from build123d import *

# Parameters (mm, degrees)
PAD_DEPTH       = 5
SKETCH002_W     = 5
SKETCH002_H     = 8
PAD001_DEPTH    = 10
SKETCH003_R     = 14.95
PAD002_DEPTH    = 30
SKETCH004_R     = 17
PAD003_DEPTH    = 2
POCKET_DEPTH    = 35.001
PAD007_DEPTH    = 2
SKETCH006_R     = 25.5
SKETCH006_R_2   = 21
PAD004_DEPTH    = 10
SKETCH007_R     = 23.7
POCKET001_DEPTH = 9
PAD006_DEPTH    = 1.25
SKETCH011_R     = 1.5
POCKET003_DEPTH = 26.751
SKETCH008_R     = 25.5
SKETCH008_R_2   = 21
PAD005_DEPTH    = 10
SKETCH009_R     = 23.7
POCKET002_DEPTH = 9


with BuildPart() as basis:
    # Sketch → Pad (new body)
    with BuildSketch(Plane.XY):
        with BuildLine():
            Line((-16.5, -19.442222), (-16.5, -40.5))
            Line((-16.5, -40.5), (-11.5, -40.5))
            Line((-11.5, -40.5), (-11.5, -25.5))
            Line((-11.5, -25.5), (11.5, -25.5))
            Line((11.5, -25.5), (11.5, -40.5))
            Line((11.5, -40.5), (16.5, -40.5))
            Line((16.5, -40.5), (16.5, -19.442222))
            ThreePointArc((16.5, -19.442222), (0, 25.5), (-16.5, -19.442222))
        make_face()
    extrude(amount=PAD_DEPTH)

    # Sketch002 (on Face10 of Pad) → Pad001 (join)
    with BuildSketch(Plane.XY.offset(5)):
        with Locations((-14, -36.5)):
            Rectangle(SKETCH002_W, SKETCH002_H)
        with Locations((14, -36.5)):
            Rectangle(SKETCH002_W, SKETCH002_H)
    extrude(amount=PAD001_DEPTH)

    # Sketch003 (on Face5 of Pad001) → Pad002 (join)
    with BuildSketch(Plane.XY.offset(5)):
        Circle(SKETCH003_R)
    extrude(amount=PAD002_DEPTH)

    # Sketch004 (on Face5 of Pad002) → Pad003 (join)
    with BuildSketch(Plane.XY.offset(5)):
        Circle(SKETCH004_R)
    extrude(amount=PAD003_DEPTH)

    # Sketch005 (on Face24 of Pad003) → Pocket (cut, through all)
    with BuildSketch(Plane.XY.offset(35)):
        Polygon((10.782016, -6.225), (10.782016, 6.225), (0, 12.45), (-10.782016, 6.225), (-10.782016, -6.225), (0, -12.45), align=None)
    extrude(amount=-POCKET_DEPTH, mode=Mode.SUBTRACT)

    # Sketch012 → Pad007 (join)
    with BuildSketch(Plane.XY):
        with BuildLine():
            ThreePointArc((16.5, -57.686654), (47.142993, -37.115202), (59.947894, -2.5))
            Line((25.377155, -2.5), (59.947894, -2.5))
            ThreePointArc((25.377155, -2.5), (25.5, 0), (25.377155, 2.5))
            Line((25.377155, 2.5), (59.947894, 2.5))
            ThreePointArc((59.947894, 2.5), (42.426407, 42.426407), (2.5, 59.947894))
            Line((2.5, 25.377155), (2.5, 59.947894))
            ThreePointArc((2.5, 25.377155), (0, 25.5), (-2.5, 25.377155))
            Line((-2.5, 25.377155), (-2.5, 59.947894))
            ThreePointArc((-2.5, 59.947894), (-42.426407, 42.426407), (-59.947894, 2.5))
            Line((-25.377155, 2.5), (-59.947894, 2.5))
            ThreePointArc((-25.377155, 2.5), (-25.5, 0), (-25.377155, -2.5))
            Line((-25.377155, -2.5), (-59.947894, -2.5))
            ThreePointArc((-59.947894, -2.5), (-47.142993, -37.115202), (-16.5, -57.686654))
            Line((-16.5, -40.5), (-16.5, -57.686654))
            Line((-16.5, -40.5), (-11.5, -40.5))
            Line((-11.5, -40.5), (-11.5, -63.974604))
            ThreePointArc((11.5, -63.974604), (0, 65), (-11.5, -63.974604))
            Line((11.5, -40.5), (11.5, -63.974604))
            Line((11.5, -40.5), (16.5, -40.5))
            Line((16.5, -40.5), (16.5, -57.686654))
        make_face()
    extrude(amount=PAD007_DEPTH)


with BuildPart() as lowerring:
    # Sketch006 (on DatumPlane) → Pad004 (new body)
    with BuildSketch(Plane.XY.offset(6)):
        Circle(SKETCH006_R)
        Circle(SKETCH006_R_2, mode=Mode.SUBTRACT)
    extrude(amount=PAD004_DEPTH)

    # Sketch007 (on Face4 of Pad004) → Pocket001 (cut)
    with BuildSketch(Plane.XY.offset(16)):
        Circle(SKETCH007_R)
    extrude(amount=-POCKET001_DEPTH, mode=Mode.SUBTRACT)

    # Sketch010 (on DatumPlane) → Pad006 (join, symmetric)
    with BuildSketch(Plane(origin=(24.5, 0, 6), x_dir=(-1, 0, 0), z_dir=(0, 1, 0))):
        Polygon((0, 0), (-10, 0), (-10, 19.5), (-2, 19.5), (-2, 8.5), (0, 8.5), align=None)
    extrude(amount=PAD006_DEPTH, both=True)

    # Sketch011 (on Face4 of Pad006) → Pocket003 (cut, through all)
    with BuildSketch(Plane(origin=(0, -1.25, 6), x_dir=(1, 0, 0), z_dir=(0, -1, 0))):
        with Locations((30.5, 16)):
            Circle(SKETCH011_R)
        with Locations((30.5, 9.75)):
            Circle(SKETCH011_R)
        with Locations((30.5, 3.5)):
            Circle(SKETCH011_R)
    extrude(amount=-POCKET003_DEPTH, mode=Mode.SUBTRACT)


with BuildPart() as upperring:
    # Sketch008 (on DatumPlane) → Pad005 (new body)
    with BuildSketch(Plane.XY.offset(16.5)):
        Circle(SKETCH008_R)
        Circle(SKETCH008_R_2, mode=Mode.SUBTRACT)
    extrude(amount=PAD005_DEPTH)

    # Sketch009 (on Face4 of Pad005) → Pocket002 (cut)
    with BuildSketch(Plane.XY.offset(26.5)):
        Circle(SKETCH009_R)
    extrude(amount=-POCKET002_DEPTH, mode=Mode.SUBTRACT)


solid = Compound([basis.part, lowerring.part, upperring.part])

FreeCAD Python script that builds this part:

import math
import FreeCAD as App
import Part
import Sketcher
from FreeCAD import Vector
Q = App.Units.Quantity

doc = App.newDocument("Part")
body = doc.addObject("PartDesign::Body", "Body")

sketch1 = body.newObject("Sketcher::SketchObject", "Sketch")
sketch1.AttachmentSupport = (doc.getObject("XY_Plane"), [""])
sketch1.MapMode = "FlatFace"
sketch1.addGeometry([
    Part.LineSegment(Vector(-16.5, -19.442222, 0), Vector(-16.5, -40.5, 0)),
    Part.LineSegment(Vector(-16.5, -40.5, 0), Vector(-11.5, -40.5, 0)),
    Part.LineSegment(Vector(-11.5, -40.5, 0), Vector(-11.5, -25.5, 0)),
    Part.LineSegment(Vector(-11.5, -25.5, 0), Vector(11.5, -25.5, 0)),
    Part.LineSegment(Vector(11.5, -25.5, 0), Vector(11.5, -40.5, 0)),
    Part.LineSegment(Vector(11.5, -40.5, 0), Vector(16.5, -40.5, 0)),
    Part.LineSegment(Vector(16.5, -40.5, 0), Vector(16.5, -19.442222, 0)),
    Part.ArcOfCircle(Part.Circle(Vector(0, 0, 0), Vector(0, 0, 1), 25.5), math.radians(-49.679785), math.radians(229.679785)),
], False)
sketch1.addConstraint([
    Sketcher.Constraint("Coincident", 0, 2, 1, 1),
    Sketcher.Constraint("Coincident", 1, 2, 2, 1),
    Sketcher.Constraint("Coincident", 2, 2, 3, 1),
    Sketcher.Constraint("Coincident", 3, 2, 4, 1),
    Sketcher.Constraint("Coincident", 4, 2, 5, 1),
    Sketcher.Constraint("Coincident", 5, 2, 6, 1),
    Sketcher.Constraint("Coincident", 6, 2, 7, 1),
    Sketcher.Constraint("Coincident", 7, 2, 0, 1),
    Sketcher.Constraint("Vertical", 0),
    Sketcher.Constraint("Horizontal", 1),
    Sketcher.Constraint("Vertical", 2),
    Sketcher.Constraint("Horizontal", 3),
    Sketcher.Constraint("Vertical", 4),
    Sketcher.Constraint("Horizontal", 5),
    Sketcher.Constraint("Vertical", 6),
    Sketcher.Constraint("Coincident", 7, 3, -1, 1),
    Sketcher.Constraint("Symmetric", 1, 2, 4, 2, -2),
    Sketcher.Constraint("Horizontal", 6, 2, 7, 2),
    Sketcher.Constraint("Radius", 7, Q("25.5 mm")),
    Sketcher.Constraint("DistanceX", 1, 1, 1, 2, Q("5 mm")),
    Sketcher.Constraint("DistanceX", 3, 1, 3, 2, Q("23 mm")),
    Sketcher.Constraint("DistanceY", 2, 1, 2, 2, Q("15 mm")),
    Sketcher.Constraint("DistanceY", 0, 2, -1, 1, Q("40.5 mm")),
])
pad1 = body.newObject("PartDesign::Pad", "Pad")
pad1.Profile = sketch1
pad1.Length = 5

sketch2 = body.newObject("Sketcher::SketchObject", "Sketch001")
sketch2.AttachmentSupport = (doc.getObject("XY_Plane"), [""])
sketch2.MapMode = "FlatFace"
sketch2.AttachmentOffset = App.Placement(Vector(0, 0, 5), App.Rotation())
sketch2.addGeometry([
    Part.LineSegment(Vector(-16.5, -32.5, 0), Vector(-16.5, -40.5, 0)),
    Part.LineSegment(Vector(-16.5, -40.5, 0), Vector(-11.5, -40.5, 0)),
    Part.LineSegment(Vector(-11.5, -40.5, 0), Vector(-11.5, -32.5, 0)),
    Part.LineSegment(Vector(-11.5, -32.5, 0), Vector(-16.5, -32.5, 0)),
    Part.LineSegment(Vector(11.5, -32.5, 0), Vector(11.5, -40.5, 0)),
    Part.LineSegment(Vector(11.5, -40.5, 0), Vector(16.5, -40.5, 0)),
    Part.LineSegment(Vector(16.5, -40.5, 0), Vector(16.5, -32.5, 0)),
    Part.LineSegment(Vector(16.5, -32.5, 0), Vector(11.5, -32.5, 0)),
], False)
sketch2.addConstraint([
    Sketcher.Constraint("Coincident", 0, 2, 1, 1),
    Sketcher.Constraint("Coincident", 1, 2, 2, 1),
    Sketcher.Constraint("Coincident", 2, 2, 3, 1),
    Sketcher.Constraint("Coincident", 3, 2, 0, 1),
    Sketcher.Constraint("Coincident", 4, 2, 5, 1),
    Sketcher.Constraint("Coincident", 5, 2, 6, 1),
    Sketcher.Constraint("Coincident", 6, 2, 7, 1),
    Sketcher.Constraint("Coincident", 7, 2, 4, 1),
    Sketcher.Constraint("Vertical", 0),
    Sketcher.Constraint("Horizontal", 1),
    Sketcher.Constraint("Vertical", 2),
    Sketcher.Constraint("Horizontal", 3),
    Sketcher.Constraint("Vertical", 4),
    Sketcher.Constraint("Horizontal", 5),
    Sketcher.Constraint("Vertical", 6),
    Sketcher.Constraint("Horizontal", 7),
    Sketcher.Constraint("Symmetric", 1, 2, 4, 2, -2),
    Sketcher.Constraint("Symmetric", 3, 2, 6, 2, -2),
    Sketcher.Constraint("DistanceX", 1, 1, 1, 2, Q("5 mm")),
    Sketcher.Constraint("DistanceY", 0, 2, 0, 1, Q("8 mm")),
    Sketcher.Constraint("DistanceX", 1, 2, 4, 2, Q("23 mm")),
    Sketcher.Constraint("DistanceY", 0, 2, -1, 1, Q("40.5 mm")),
])
pad2 = body.newObject("PartDesign::Pad", "Pad001")
pad2.Profile = sketch2
pad2.Length = 10

sketch3 = body.newObject("Sketcher::SketchObject", "Sketch002")
sketch3.AttachmentSupport = (doc.getObject("XY_Plane"), [""])
sketch3.MapMode = "FlatFace"
sketch3.AttachmentOffset = App.Placement(Vector(0, 0, 5), App.Rotation())
sketch3.addGeometry(Part.Circle(Vector(0, 0, 0), Vector(0, 0, 1), 14.95), False)
sketch3.addConstraint([
    Sketcher.Constraint("Coincident", 0, 3, -1, 1),
    Sketcher.Constraint("Diameter", 0, Q("29.9 mm")),
])
pad3 = body.newObject("PartDesign::Pad", "Pad002")
pad3.Profile = sketch3
pad3.Length = 30

sketch4 = body.newObject("Sketcher::SketchObject", "Sketch003")
sketch4.AttachmentSupport = (doc.getObject("XY_Plane"), [""])
sketch4.MapMode = "FlatFace"
sketch4.AttachmentOffset = App.Placement(Vector(0, 0, 5), App.Rotation())
sketch4.addGeometry(Part.Circle(Vector(0, 0, 0), Vector(0, 0, 1), 17), False)
sketch4.addConstraint([
    Sketcher.Constraint("Coincident", 0, 3, -1, 1),
    Sketcher.Constraint("Diameter", 0, Q("34 mm")),
])
pad4 = body.newObject("PartDesign::Pad", "Pad003")
pad4.Profile = sketch4
pad4.Length = 2

sketch5 = body.newObject("Sketcher::SketchObject", "Sketch004")
sketch5.AttachmentSupport = (doc.getObject("XY_Plane"), [""])
sketch5.MapMode = "FlatFace"
sketch5.AttachmentOffset = App.Placement(Vector(0, 0, 35), App.Rotation())
sketch5.addGeometry([
    Part.LineSegment(Vector(10.782016, -6.225, 0), Vector(10.782016, 6.225, 0)),
    Part.LineSegment(Vector(10.782016, 6.225, 0), Vector(0, 12.45, 0)),
    Part.LineSegment(Vector(0, 12.45, 0), Vector(-10.782016, 6.225, 0)),
    Part.LineSegment(Vector(-10.782016, 6.225, 0), Vector(-10.782016, -6.225, 0)),
    Part.LineSegment(Vector(-10.782016, -6.225, 0), Vector(0, -12.45, 0)),
    Part.LineSegment(Vector(0, -12.45, 0), Vector(10.782016, -6.225, 0)),
], False)
sketch5.addConstraint([
    Sketcher.Constraint("Coincident", 0, 2, 1, 1),
    Sketcher.Constraint("Coincident", 1, 2, 2, 1),
    Sketcher.Constraint("Coincident", 2, 2, 3, 1),
    Sketcher.Constraint("Coincident", 3, 2, 4, 1),
    Sketcher.Constraint("Coincident", 4, 2, 5, 1),
    Sketcher.Constraint("Coincident", 5, 2, 0, 1),
    Sketcher.Constraint("Vertical", 0),
    Sketcher.Constraint("Vertical", 3),
    Sketcher.Constraint("Symmetric", 0, 2, 3, 2, -1, 1),
    Sketcher.Constraint("Symmetric", 1, 2, 4, 2, -1, 1),
    Sketcher.Constraint("PointOnObject", 1, 2, -2),
    Sketcher.Constraint("Parallel", 2, 5),
    Sketcher.Constraint("Horizontal", 0, 2, 2, 2),
    Sketcher.Constraint("Angle", 1, Q("149.999999 deg")),
    Sketcher.Constraint("DistanceY", 0, 1, 0, 2, Q("12.45 mm")),
    Sketcher.Constraint("DistanceY", 4, 2, 1, 2, Q("24.9 mm")),
])
pocket1 = body.newObject("PartDesign::Pocket", "Pocket")
pocket1.Profile = sketch5
pocket1.Type = "ThroughAll"

sketch6 = body.newObject("Sketcher::SketchObject", "Sketch005")
sketch6.AttachmentSupport = (doc.getObject("XY_Plane"), [""])
sketch6.MapMode = "FlatFace"
sketch6.addGeometry([
    Part.ArcOfCircle(Part.Circle(Vector(-0.000001, 0, 0), Vector(0, 0, 1), 60.000001), math.radians(-74.037985), math.radians(-2.388016)),
    Part.LineSegment(Vector(16.5, -57.686654, 0), Vector(16.5, -40.5, 0)),
    Part.LineSegment(Vector(16.5, -40.5, 0), Vector(11.5, -40.5, 0)),
    Part.LineSegment(Vector(11.5, -40.5, 0), Vector(11.5, -63.974604, 0)),
    Part.ArcOfCircle(Part.Circle(Vector(0, 0, 0), Vector(0, 0, 1), 65), math.radians(-79.809411), math.radians(259.809411)),
    Part.LineSegment(Vector(-11.5, -63.974604, 0), Vector(-11.5, -40.5, 0)),
    Part.LineSegment(Vector(-11.5, -40.5, 0), Vector(-16.5, -40.5, 0)),
    Part.LineSegment(Vector(-16.5, -40.5, 0), Vector(-16.5, -57.686654, 0)),
    Part.ArcOfCircle(Part.Circle(Vector(0.000001, 0, 0), Vector(0, 0, 1), 60.000001), math.radians(-177.611984), math.radians(-105.962015)),
    Part.LineSegment(Vector(-59.947894, -2.5, 0), Vector(-25.377155, -2.5, 0)),
    Part.ArcOfCircle(Part.Circle(Vector(-0.000017, 0, 0), Vector(0, 0, 1), 25.499983), math.radians(174.373725), math.radians(185.626275)),
    Part.LineSegment(Vector(-25.377155, 2.5, 0), Vector(-59.947894, 2.5, 0)),
    Part.ArcOfCircle(Part.Circle(Vector(-0.000001, 0.000001, 0), Vector(0, 0, 1), 59.999999), math.radians(92.388015), math.radians(177.611985)),
    Part.LineSegment(Vector(-2.5, 59.947894, 0), Vector(-2.5, 25.377155, 0)),
    Part.ArcOfCircle(Part.Circle(Vector(0, 0.000017, 0), Vector(0, 0, 1), 25.499983), math.radians(84.373725), math.radians(95.626275)),
    Part.LineSegment(Vector(2.5, 25.377155, 0), Vector(2.5, 59.947894, 0)),
    Part.ArcOfCircle(Part.Circle(Vector(0.000001, 0.000001, 0), Vector(0, 0, 1), 59.999999), math.radians(2.388015), math.radians(87.611985)),
    Part.LineSegment(Vector(59.947894, 2.5, 0), Vector(25.377155, 2.5, 0)),
    Part.ArcOfCircle(Part.Circle(Vector(0.000017, 0, 0), Vector(0, 0, 1), 25.499983), math.radians(-5.626275), math.radians(5.626275)),
    Part.LineSegment(Vector(25.377155, -2.5, 0), Vector(59.947894, -2.5, 0)),
], False)
sketch6.addConstraint([
    Sketcher.Constraint("Coincident", 0, 1, 1, 1),
    Sketcher.Constraint("Coincident", 1, 2, 2, 1),
    Sketcher.Constraint("Coincident", 2, 2, 3, 1),
    Sketcher.Constraint("Coincident", 3, 2, 4, 1),
    Sketcher.Constraint("Coincident", 4, 2, 5, 1),
    Sketcher.Constraint("Coincident", 5, 2, 6, 1),
    Sketcher.Constraint("Coincident", 6, 2, 7, 1),
    Sketcher.Constraint("Coincident", 7, 2, 8, 2),
    Sketcher.Constraint("Coincident", 8, 1, 9, 1),
    Sketcher.Constraint("Coincident", 9, 2, 10, 2),
    Sketcher.Constraint("Coincident", 10, 1, 11, 1),
    Sketcher.Constraint("Coincident", 11, 2, 12, 2),
    Sketcher.Constraint("Coincident", 12, 1, 13, 1),
    Sketcher.Constraint("Coincident", 13, 2, 14, 2),
    Sketcher.Constraint("Coincident", 14, 1, 15, 1),
    Sketcher.Constraint("Coincident", 15, 2, 16, 2),
    Sketcher.Constraint("Coincident", 16, 1, 17, 1),
    Sketcher.Constraint("Coincident", 17, 2, 18, 2),
    Sketcher.Constraint("Coincident", 18, 1, 19, 1),
    Sketcher.Constraint("Coincident", 19, 2, 0, 2),
    Sketcher.Constraint("Vertical", 1),
    Sketcher.Constraint("Horizontal", 2),
    Sketcher.Constraint("Vertical", 3),
    Sketcher.Constraint("Vertical", 5),
    Sketcher.Constraint("Horizontal", 6),
    Sketcher.Constraint("Vertical", 7),
    Sketcher.Constraint("Horizontal", 9),
    Sketcher.Constraint("Horizontal", 11),
    Sketcher.Constraint("Vertical", 13),
    Sketcher.Constraint("Vertical", 15),
    Sketcher.Constraint("Horizontal", 17),
    Sketcher.Constraint("Horizontal", 19),
    Sketcher.Constraint("Coincident", 0, 3, -1, 1),
    Sketcher.Constraint("Coincident", 4, 3, -1, 1),
    Sketcher.Constraint("Coincident", 8, 3, -1, 1),
    Sketcher.Constraint("Coincident", 12, 3, -1, 1),
    Sketcher.Constraint("Coincident", 16, 3, -1, 1),
    Sketcher.Constraint("Equal", 0, 8),
    Sketcher.Constraint("Equal", 8, 12),
    Sketcher.Constraint("Equal", 10, 14),
    Sketcher.Constraint("Equal", 12, 16),
    Sketcher.Constraint("Equal", 14, 18),
    Sketcher.Constraint("Symmetric", 10, 3, 18, 3, -1, 1),
    Sketcher.Constraint("Symmetric", 2, 2, 5, 2, -2),
    Sketcher.Constraint("Symmetric", 13, 2, 14, 1, -2),
    Sketcher.Constraint("Symmetric", 10, 1, 17, 2, -2),
    Sketcher.Constraint("Horizontal", 0, 1, 7, 2),
    Sketcher.Constraint("Horizontal", 9, 2, 18, 1),
    Sketcher.Constraint("Vertical", 9, 2, 10, 1),
    Sketcher.Constraint("Equal", 19, 13),
    Sketcher.Constraint("Radius", 0, Q("60.000001 mm")),
    Sketcher.Constraint("Radius", 4, Q("65 mm")),
    Sketcher.Constraint("DistanceX", 2, 2, 2, 1, Q("5 mm")),
    Sketcher.Constraint("DistanceX", 4, 2, 3, 2, Q("23 mm")),
    Sketcher.Constraint("DistanceY", 6, 2, 8, 1, Q("38 mm")),
    Sketcher.Constraint("DistanceY", 9, 2, 10, 1, Q("5 mm")),
    Sketcher.Constraint("DistanceX", 13, 2, 14, 1, Q("5 mm")),
    Sketcher.Constraint("Radius", 10, Q("25.499983 mm")),
    Sketcher.Constraint("DistanceX", 9, 1, 9, 2, Q("34.570739 mm")),
])
pad5 = body.newObject("PartDesign::Pad", "Pad004")
pad5.Profile = sketch6
pad5.Length = 2
body2 = doc.addObject("PartDesign::Body", "Body001")

sketch7 = body2.newObject("Sketcher::SketchObject", "Sketch006")
sketch7.AttachmentSupport = (doc.getObject("XY_Plane001"), [""])
sketch7.MapMode = "FlatFace"
sketch7.AttachmentOffset = App.Placement(Vector(0, 0, 6), App.Rotation())
sketch7.addGeometry([
    Part.Circle(Vector(0, 0, 0), Vector(0, 0, 1), 25.5),
    Part.Circle(Vector(0, 0, 0), Vector(0, 0, 1), 21),
], False)
sketch7.addConstraint([
    Sketcher.Constraint("Coincident", 0, 3, -1, 1),
    Sketcher.Constraint("Coincident", 1, 3, -1, 1),
    Sketcher.Constraint("Diameter", 0, Q("51 mm")),
    Sketcher.Constraint("Diameter", 1, Q("42 mm")),
])
pad6 = body2.newObject("PartDesign::Pad", "Pad005")
pad6.Profile = sketch7
pad6.Length = 10

sketch8 = body2.newObject("Sketcher::SketchObject", "Sketch007")
sketch8.AttachmentSupport = (doc.getObject("XY_Plane001"), [""])
sketch8.MapMode = "FlatFace"
sketch8.AttachmentOffset = App.Placement(Vector(0, 0, 16), App.Rotation())
sketch8.addGeometry(Part.Circle(Vector(0, 0, 0), Vector(0, 0, 1), 23.7), False)
sketch8.addConstraint([
    Sketcher.Constraint("Coincident", 0, 3, -1, 1),
    Sketcher.Constraint("Diameter", 0, Q("47.4 mm")),
])
pocket2 = body2.newObject("PartDesign::Pocket", "Pocket001")
pocket2.Profile = sketch8
pocket2.Length = 9

sketch9 = body2.newObject("Sketcher::SketchObject", "Sketch008")
sketch9.AttachmentSupport = (doc.getObject("XZ_Plane001"), [""])
sketch9.MapMode = "FlatFace"
sketch9.addGeometry([
    Part.LineSegment(Vector(34.5, 6, 0), Vector(24.5, 6, 0)),
    Part.LineSegment(Vector(24.5, 6, 0), Vector(24.5, 14.5, 0)),
    Part.LineSegment(Vector(24.5, 14.5, 0), Vector(26.5, 14.5, 0)),
    Part.LineSegment(Vector(26.5, 14.5, 0), Vector(26.5, 25.5, 0)),
    Part.LineSegment(Vector(26.5, 25.5, 0), Vector(34.5, 25.5, 0)),
    Part.LineSegment(Vector(34.5, 25.5, 0), Vector(34.5, 6, 0)),
], False)
sketch9.addConstraint([
    Sketcher.Constraint("Coincident", 0, 2, 1, 1),
    Sketcher.Constraint("Coincident", 1, 2, 2, 1),
    Sketcher.Constraint("Coincident", 2, 2, 3, 1),
    Sketcher.Constraint("Coincident", 3, 2, 4, 1),
    Sketcher.Constraint("Coincident", 4, 2, 5, 1),
    Sketcher.Constraint("Coincident", 5, 2, 0, 1),
    Sketcher.Constraint("Horizontal", 0),
    Sketcher.Constraint("Vertical", 1),
    Sketcher.Constraint("Horizontal", 2),
    Sketcher.Constraint("Vertical", 3),
    Sketcher.Constraint("Horizontal", 4),
    Sketcher.Constraint("Vertical", 5),
    Sketcher.Constraint("DistanceX", 0, 2, 0, 1, Q("10 mm")),
    Sketcher.Constraint("DistanceX", 2, 1, 2, 2, Q("2 mm")),
    Sketcher.Constraint("DistanceY", 3, 1, 3, 2, Q("11 mm")),
    Sketcher.Constraint("DistanceY", 1, 1, 1, 2, Q("8.5 mm")),
    Sketcher.Constraint("DistanceY", -1, 1, 0, 2, Q("6 mm")),
    Sketcher.Constraint("DistanceX", -1, 1, 0, 2, Q("24.5 mm")),
])
pad7 = body2.newObject("PartDesign::Pad", "Pad006")
pad7.Profile = sketch9
pad7.Length = 2.5
pad7.Midplane = True

sketch10 = body2.newObject("Sketcher::SketchObject", "Sketch009")
sketch10.AttachmentSupport = (doc.getObject("XZ_Plane001"), [""])
sketch10.MapMode = "FlatFace"
sketch10.AttachmentOffset = App.Placement(Vector(0, 0, 1.25), App.Rotation())
sketch10.addGeometry([
    Part.Circle(Vector(30.5, 22, 0), Vector(0, 0, 1), 1.5),
    Part.Circle(Vector(30.5, 15.75, 0), Vector(0, 0, 1), 1.5),
    Part.Circle(Vector(30.5, 9.5, 0), Vector(0, 0, 1), 1.5),
], False)
sketch10.addConstraint([
    Sketcher.Constraint("Equal", 0, 1),
    Sketcher.Constraint("Equal", 1, 2),
    Sketcher.Constraint("Vertical", 0, 3, 1, 3),
    Sketcher.Constraint("Vertical", 1, 3, 2, 3),
    Sketcher.Constraint("Diameter", 0, Q("3 mm")),
    Sketcher.Constraint("DistanceY", -1, 1, 0, 3, Q("22 mm")),
    Sketcher.Constraint("DistanceX", -1, 1, 0, 3, Q("30.5 mm")),
    Sketcher.Constraint("DistanceY", -1, 1, 2, 3, Q("9.5 mm")),
    Sketcher.Constraint("DistanceY", -1, 1, 1, 3, Q("15.75 mm")),
])
pocket3 = body2.newObject("PartDesign::Pocket", "Pocket002")
pocket3.Profile = sketch10
pocket3.Type = "ThroughAll"
body3 = doc.addObject("PartDesign::Body", "Body002")

sketch11 = body3.newObject("Sketcher::SketchObject", "Sketch010")
sketch11.AttachmentSupport = (doc.getObject("XY_Plane002"), [""])
sketch11.MapMode = "FlatFace"
sketch11.AttachmentOffset = App.Placement(Vector(0, 0, 16.5), App.Rotation())
sketch11.addGeometry([
    Part.Circle(Vector(0, 0, 0), Vector(0, 0, 1), 25.5),
    Part.Circle(Vector(0, 0, 0), Vector(0, 0, 1), 21),
], False)
sketch11.addConstraint([
    Sketcher.Constraint("Coincident", 0, 3, -1, 1),
    Sketcher.Constraint("Coincident", 1, 3, -1, 1),
    Sketcher.Constraint("Diameter", 0, Q("51 mm")),
    Sketcher.Constraint("Diameter", 1, Q("42 mm")),
])
pad8 = body3.newObject("PartDesign::Pad", "Pad007")
pad8.Profile = sketch11
pad8.Length = 10

sketch12 = body3.newObject("Sketcher::SketchObject", "Sketch011")
sketch12.AttachmentSupport = (doc.getObject("XY_Plane002"), [""])
sketch12.MapMode = "FlatFace"
sketch12.AttachmentOffset = App.Placement(Vector(0, 0, 26.5), App.Rotation())
sketch12.addGeometry(Part.Circle(Vector(0, 0, 0), Vector(0, 0, 1), 23.7), False)
sketch12.addConstraint([
    Sketcher.Constraint("Coincident", 0, 3, -1, 1),
    Sketcher.Constraint("Diameter", 0, Q("47.4 mm")),
])
pocket4 = body3.newObject("PartDesign::Pocket", "Pocket003")
pocket4.Profile = sketch12
pocket4.Length = 9

doc.recompute()
